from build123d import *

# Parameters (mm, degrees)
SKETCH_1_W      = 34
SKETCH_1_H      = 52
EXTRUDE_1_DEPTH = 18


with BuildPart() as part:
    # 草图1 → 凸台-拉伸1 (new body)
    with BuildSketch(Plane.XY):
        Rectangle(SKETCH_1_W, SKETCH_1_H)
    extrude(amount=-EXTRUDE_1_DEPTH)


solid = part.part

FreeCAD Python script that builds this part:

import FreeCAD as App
import Part
import Sketcher
from FreeCAD import Vector

doc = App.newDocument("Part")
params = doc.addObject("Spreadsheet::Sheet", "Params")
for row, (alias, value) in enumerate([
    ("sketch1_width", "34 mm"),
    ("sketch1_height", "52 mm"),
    ("pad1_length", "18 mm"),
], start=1):
    params.set(f"A{row}", alias)
    params.set(f"B{row}", "=" + value)
    params.setAlias(f"B{row}", alias)

body = doc.addObject("PartDesign::Body", "Body")

sketch1 = doc.addObject("Sketcher::SketchObject", "Sketch")
body.addObject(sketch1)
sketch1.AttachmentSupport = (doc.XY_Plane, [""])
sketch1.MapMode = "FlatFace"
sketch1.addGeometry([
    Part.LineSegment(Vector(-17, 26, 0), Vector(-17, -26, 0)),
    Part.LineSegment(Vector(-17, -26, 0), Vector(17, -26, 0)),
    Part.LineSegment(Vector(17, -26, 0), Vector(17, 26, 0)),
    Part.LineSegment(Vector(17, 26, 0), Vector(-17, 26, 0)),
], False)
sketch1.addConstraint([
    Sketcher.Constraint("Coincident", 0, 2, 1, 1),
    Sketcher.Constraint("Coincident", 1, 2, 2, 1),
    Sketcher.Constraint("Coincident", 2, 2, 3, 1),
    Sketcher.Constraint("Coincident", 3, 2, 0, 1),
    Sketcher.Constraint("Vertical", 0),
    Sketcher.Constraint("Horizontal", 1),
    Sketcher.Constraint("Vertical", 2),
    Sketcher.Constraint("Horizontal", 3),
    Sketcher.Constraint("Symmetric", 0, 2, 2, 2, -1, 1),
    Sketcher.Constraint("DistanceX", 1, 1, 1, 2, 34.0),
    Sketcher.Constraint("DistanceY", 0, 2, 0, 1, 52.0),
])
sketch1.setExpression("Constraints[9]", "Params.sketch1_width")
sketch1.setExpression("Constraints[10]", "Params.sketch1_height")
pad1 = doc.addObject("PartDesign::Pad", "Pad")
body.addObject(pad1)
pad1.Profile = sketch1
pad1.setExpression("Length", "Params.pad1_length")
pad1.Reversed = True

doc.recompute()
